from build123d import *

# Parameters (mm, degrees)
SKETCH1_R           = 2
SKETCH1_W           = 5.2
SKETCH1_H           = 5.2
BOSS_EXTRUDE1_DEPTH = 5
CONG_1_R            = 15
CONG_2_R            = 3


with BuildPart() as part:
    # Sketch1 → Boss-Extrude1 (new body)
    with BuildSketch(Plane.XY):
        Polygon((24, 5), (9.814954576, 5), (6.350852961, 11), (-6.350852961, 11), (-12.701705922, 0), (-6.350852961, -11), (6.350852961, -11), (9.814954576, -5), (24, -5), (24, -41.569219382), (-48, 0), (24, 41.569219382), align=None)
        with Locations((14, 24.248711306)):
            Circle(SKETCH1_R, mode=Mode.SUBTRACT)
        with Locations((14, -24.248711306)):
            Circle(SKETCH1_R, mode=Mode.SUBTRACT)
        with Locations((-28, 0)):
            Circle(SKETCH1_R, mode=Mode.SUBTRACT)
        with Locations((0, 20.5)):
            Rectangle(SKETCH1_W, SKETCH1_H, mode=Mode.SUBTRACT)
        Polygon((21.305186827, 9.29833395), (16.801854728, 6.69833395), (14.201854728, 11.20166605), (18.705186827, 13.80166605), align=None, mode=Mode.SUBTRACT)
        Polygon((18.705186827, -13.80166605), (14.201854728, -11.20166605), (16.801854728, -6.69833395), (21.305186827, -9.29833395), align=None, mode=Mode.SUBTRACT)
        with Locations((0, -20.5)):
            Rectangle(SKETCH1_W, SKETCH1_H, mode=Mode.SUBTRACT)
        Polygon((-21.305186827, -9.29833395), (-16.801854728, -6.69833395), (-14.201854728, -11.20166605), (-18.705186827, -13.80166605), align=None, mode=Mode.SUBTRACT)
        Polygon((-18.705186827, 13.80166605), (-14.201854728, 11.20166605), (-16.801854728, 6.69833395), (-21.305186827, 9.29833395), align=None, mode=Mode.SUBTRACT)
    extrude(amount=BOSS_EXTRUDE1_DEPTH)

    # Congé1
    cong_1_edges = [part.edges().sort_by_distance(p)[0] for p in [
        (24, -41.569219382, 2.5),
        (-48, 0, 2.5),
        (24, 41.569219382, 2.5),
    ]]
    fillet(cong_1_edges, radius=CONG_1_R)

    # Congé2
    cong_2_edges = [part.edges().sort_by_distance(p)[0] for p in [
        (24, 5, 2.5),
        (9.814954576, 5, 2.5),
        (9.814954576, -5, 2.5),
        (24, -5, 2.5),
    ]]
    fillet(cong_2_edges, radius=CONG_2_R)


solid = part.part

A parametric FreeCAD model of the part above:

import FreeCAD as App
import Part
import Sketcher
from FreeCAD import Vector
Q = App.Units.Quantity


def edges_at(feature, points):
    """Names of the edges that pass closest to the given points."""
    edges = feature.Shape.Edges
    near = lambda p: min(range(len(edges)), key=lambda i: edges[i].distToShape(Part.Vertex(*p))[0])
    return sorted({f"Edge{near(p) + 1}" for p in points})


def add_polygon(sketch, points):
    """Adds a closed chain of lines whose ends are joined by coincident constraints."""
    first, n = sketch.GeometryCount, len(points)
    for a, b in zip(points, points[1:] + points[:1]):
        sketch.addGeometry(Part.LineSegment(App.Vector(*a, 0), App.Vector(*b, 0)), False)
    for i in range(n):
        sketch.addConstraint(Sketcher.Constraint("Coincident", first + i, 2, first + (i + 1) % n, 1))

doc = App.newDocument("Part")
body = doc.addObject("PartDesign::Body", "Body")

# Sketch on XY plane
sketch1 = body.newObject("Sketcher::SketchObject", "Sketch")
sketch1.AttachmentSupport = (doc.getObject("XY_Plane"), [""])
sketch1.MapMode = "FlatFace"
add_polygon(sketch1, [(9.8, 5), (24, 5), (24, 41.6), (-48, 0), (24, -41.6), (24, -5), (9.8, -5), (6.4, -11), (-6.4, -11), (-12.7, 0), (-6.4, 11), (6.4, 11)])  # lines 0-11
sketch1.addGeometry(Part.Circle(Vector(14, -24.2, 0), Vector(0, 0, 1), 2), False)  # 12
add_polygon(sketch1, [(-2.6, -23.1), (-2.6, -17.9), (2.6, -17.9), (2.6, -23.1)])  # lines 13-16
add_polygon(sketch1, [(18.7, -13.8), (14.2, -11.2), (16.8, -6.7), (21.3, -9.3)])  # lines 17-20
add_polygon(sketch1, [(-21.3, -9.3), (-16.8, -6.7), (-14.2, -11.2), (-18.7, -13.8)])  # lines 21-24
add_polygon(sketch1, [(21.3, 9.3), (16.8, 6.7), (14.2, 11.2), (18.7, 13.8)])  # lines 25-28
sketch1.addGeometry(Part.Circle(Vector(14, 24.2, 0), Vector(0, 0, 1), 2), False)  # 29
add_polygon(sketch1, [(-2.6, 17.9), (-2.6, 23.1), (2.6, 23.1), (2.6, 17.9)])  # lines 30-33
sketch1.addGeometry(Part.Circle(Vector(-28, 0, 0), Vector(0, 0, 1), 2), False)  # 34
add_polygon(sketch1, [(-18.7, 13.8), (-14.2, 11.2), (-16.8, 6.7), (-21.3, 9.3)])  # lines 35-38
sketch1.addConstraint(Sketcher.Constraint("Horizontal", 0))
sketch1.addConstraint(Sketcher.Constraint("Vertical", 1))
sketch1.addConstraint(Sketcher.Constraint("Vertical", 4))
sketch1.addConstraint(Sketcher.Constraint("Horizontal", 5))
sketch1.addConstraint(Sketcher.Constraint("Horizontal", 7))
sketch1.addConstraint(Sketcher.Constraint("Horizontal", 10))
sketch1.addConstraint(Sketcher.Constraint("Vertical", 13))
sketch1.addConstraint(Sketcher.Constraint("Horizontal", 14))
sketch1.addConstraint(Sketcher.Constraint("Vertical", 15))
sketch1.addConstraint(Sketcher.Constraint("Horizontal", 16))
sketch1.addConstraint(Sketcher.Constraint("Vertical", 30))
sketch1.addConstraint(Sketcher.Constraint("Horizontal", 31))
sketch1.addConstraint(Sketcher.Constraint("Vertical", 32))
sketch1.addConstraint(Sketcher.Constraint("Horizontal", 33))
sketch1.addConstraint(Sketcher.Constraint("Equal", 12, 29))
sketch1.addConstraint(Sketcher.Constraint("Equal", 29, 34))
sketch1.addConstraint(Sketcher.Constraint("Symmetric", 6, 2, 9, 2, -1, 1))
sketch1.addConstraint(Sketcher.Constraint("Symmetric", 21, 2, 25, 2, -1, 1))
sketch1.addConstraint(Sketcher.Constraint("Symmetric", 22, 2, 26, 2, -1, 1))
sketch1.addConstraint(Sketcher.Constraint("Symmetric", 23, 2, 27, 2, -1, 1))
sketch1.addConstraint(Sketcher.Constraint("Symmetric", 24, 2, 28, 2, -1, 1))
sketch1.addConstraint(Sketcher.Constraint("Symmetric", 15, 2, 30, 2, -1, 1))
sketch1.addConstraint(Sketcher.Constraint("Symmetric", 13, 2, 32, 2, -1, 1))
sketch1.addConstraint(Sketcher.Constraint("Symmetric", 17, 2, 35, 2, -1, 1))
sketch1.addConstraint(Sketcher.Constraint("Symmetric", 18, 2, 36, 2, -1, 1))
sketch1.addConstraint(Sketcher.Constraint("Symmetric", 19, 2, 37, 2, -1, 1))
sketch1.addConstraint(Sketcher.Constraint("Symmetric", 20, 2, 38, 2, -1, 1))
sketch1.addConstraint(Sketcher.Constraint("Symmetric", 18, 2, 21, 2, -2))
sketch1.addConstraint(Sketcher.Constraint("Symmetric", 17, 2, 22, 2, -2))
sketch1.addConstraint(Sketcher.Constraint("Symmetric", 20, 2, 23, 2, -2))
sketch1.addConstraint(Sketcher.Constraint("Symmetric", 19, 2, 24, 2, -2))
sketch1.addConstraint(Sketcher.Constraint("Symmetric", 12, 3, 29, 3, -1))
sketch1.addConstraint(Sketcher.Constraint("Symmetric", 1, 2, 3, 2, -1))
sketch1.addConstraint(Sketcher.Constraint("Symmetric", 5, 2, 11, 2, -1))
sketch1.addConstraint(Sketcher.Constraint("PointOnObject", 34, 3, -1))
sketch1.addConstraint(Sketcher.Constraint("PointOnObject", 2, 2, -1))
sketch1.addConstraint(Sketcher.Constraint("PointOnObject", 8, 2, -1))
sketch1.addConstraint(Sketcher.Constraint("Perpendicular", 3, 6))
sketch1.addConstraint(Sketcher.Constraint("Perpendicular", 2, 8))
sketch1.addConstraint(Sketcher.Constraint("Parallel", 6, 9))
sketch1.addConstraint(Sketcher.Constraint("Parallel", 8, 11))
sketch1.addConstraint(Sketcher.Constraint("Perpendicular", 9, 17))
sketch1.addConstraint(Sketcher.Constraint("Perpendicular", 17, 18))
sketch1.addConstraint(Sketcher.Constraint("Perpendicular", 18, 19))
sketch1.addConstraint(Sketcher.Constraint("Perpendicular", 19, 20))
sketch1.addConstraint(Sketcher.Constraint("Vertical", 16, 2, 30, 2))
sketch1.addConstraint(Sketcher.Constraint("Equal", 33, 13))
sketch1.addConstraint(Sketcher.Constraint("Equal", 17, 18))
sketch1.addConstraint(Sketcher.Constraint("Diameter", 12, 4.0))
sketch1.addConstraint(Sketcher.Constraint("Angle", 2, Q("-150 deg")))
sketch1.addConstraint(Sketcher.Constraint("DistanceX", 14, 1, 14, 2, 5.2))
sketch1.addConstraint(Sketcher.Constraint("DistanceX", -1, 1, 12, 3, 14.0))
sketch1.addConstraint(Sketcher.Constraint("DistanceX", 34, 3, -1, 1, 28.0))
sketch1.addConstraint(Sketcher.Constraint("DistanceX", -1, 1, 0, 2, 24.0))
sketch1.addConstraint(Sketcher.Constraint("DistanceY", -1, 1, 0, 2, 5.0))
sketch1.addConstraint(Sketcher.Constraint("DistanceX", 2, 2, -1, 1, 48.0))
sketch1.addConstraint(Sketcher.Constraint("DistanceY", 6, 2, -1, 1, 11.0))
sketch1.addConstraint(Sketcher.Constraint("Distance", 17, 5.2))
sketch1.addConstraint(Sketcher.Constraint("DistanceY", 13, 2, -1, 1, 17.9))
sketch1.addConstraint(Sketcher.Constraint("DistanceX", 6, 2, 17, 2, 7.851002))
sketch1.addConstraint(Sketcher.Constraint("DistanceX", 0, 1, 0, 2, 14.185045))
sketch1.addConstraint(Sketcher.Constraint("DistanceY", 12, 3, -1, 1, 24.248711))
sketch1.addConstraint(Sketcher.Constraint("DistanceY", 17, 2, -1, 1, 11.201666))
pad1 = body.newObject("PartDesign::Pad", "Pad")
pad1.Profile = sketch1
pad1.Length = 5
doc.recompute()

fillet = body.newObject("PartDesign::Fillet", "Fillet")
fillet.Base = (pad1, edges_at(pad1, [(24, -41.569, 2.5), (-48, 0, 2.5), (24, 41.569, 2.5)]))
fillet.Radius = 15
doc.recompute()

fillet2 = body.newObject("PartDesign::Fillet", "Fillet001")
fillet2.Base = (fillet, edges_at(fillet, [
    (24, 5, 2.5),
    (9.815, 5, 2.5),
    (9.815, -5, 2.5),
    (24, -5, 2.5),
]))
fillet2.Radius = 3

doc.recompute()
